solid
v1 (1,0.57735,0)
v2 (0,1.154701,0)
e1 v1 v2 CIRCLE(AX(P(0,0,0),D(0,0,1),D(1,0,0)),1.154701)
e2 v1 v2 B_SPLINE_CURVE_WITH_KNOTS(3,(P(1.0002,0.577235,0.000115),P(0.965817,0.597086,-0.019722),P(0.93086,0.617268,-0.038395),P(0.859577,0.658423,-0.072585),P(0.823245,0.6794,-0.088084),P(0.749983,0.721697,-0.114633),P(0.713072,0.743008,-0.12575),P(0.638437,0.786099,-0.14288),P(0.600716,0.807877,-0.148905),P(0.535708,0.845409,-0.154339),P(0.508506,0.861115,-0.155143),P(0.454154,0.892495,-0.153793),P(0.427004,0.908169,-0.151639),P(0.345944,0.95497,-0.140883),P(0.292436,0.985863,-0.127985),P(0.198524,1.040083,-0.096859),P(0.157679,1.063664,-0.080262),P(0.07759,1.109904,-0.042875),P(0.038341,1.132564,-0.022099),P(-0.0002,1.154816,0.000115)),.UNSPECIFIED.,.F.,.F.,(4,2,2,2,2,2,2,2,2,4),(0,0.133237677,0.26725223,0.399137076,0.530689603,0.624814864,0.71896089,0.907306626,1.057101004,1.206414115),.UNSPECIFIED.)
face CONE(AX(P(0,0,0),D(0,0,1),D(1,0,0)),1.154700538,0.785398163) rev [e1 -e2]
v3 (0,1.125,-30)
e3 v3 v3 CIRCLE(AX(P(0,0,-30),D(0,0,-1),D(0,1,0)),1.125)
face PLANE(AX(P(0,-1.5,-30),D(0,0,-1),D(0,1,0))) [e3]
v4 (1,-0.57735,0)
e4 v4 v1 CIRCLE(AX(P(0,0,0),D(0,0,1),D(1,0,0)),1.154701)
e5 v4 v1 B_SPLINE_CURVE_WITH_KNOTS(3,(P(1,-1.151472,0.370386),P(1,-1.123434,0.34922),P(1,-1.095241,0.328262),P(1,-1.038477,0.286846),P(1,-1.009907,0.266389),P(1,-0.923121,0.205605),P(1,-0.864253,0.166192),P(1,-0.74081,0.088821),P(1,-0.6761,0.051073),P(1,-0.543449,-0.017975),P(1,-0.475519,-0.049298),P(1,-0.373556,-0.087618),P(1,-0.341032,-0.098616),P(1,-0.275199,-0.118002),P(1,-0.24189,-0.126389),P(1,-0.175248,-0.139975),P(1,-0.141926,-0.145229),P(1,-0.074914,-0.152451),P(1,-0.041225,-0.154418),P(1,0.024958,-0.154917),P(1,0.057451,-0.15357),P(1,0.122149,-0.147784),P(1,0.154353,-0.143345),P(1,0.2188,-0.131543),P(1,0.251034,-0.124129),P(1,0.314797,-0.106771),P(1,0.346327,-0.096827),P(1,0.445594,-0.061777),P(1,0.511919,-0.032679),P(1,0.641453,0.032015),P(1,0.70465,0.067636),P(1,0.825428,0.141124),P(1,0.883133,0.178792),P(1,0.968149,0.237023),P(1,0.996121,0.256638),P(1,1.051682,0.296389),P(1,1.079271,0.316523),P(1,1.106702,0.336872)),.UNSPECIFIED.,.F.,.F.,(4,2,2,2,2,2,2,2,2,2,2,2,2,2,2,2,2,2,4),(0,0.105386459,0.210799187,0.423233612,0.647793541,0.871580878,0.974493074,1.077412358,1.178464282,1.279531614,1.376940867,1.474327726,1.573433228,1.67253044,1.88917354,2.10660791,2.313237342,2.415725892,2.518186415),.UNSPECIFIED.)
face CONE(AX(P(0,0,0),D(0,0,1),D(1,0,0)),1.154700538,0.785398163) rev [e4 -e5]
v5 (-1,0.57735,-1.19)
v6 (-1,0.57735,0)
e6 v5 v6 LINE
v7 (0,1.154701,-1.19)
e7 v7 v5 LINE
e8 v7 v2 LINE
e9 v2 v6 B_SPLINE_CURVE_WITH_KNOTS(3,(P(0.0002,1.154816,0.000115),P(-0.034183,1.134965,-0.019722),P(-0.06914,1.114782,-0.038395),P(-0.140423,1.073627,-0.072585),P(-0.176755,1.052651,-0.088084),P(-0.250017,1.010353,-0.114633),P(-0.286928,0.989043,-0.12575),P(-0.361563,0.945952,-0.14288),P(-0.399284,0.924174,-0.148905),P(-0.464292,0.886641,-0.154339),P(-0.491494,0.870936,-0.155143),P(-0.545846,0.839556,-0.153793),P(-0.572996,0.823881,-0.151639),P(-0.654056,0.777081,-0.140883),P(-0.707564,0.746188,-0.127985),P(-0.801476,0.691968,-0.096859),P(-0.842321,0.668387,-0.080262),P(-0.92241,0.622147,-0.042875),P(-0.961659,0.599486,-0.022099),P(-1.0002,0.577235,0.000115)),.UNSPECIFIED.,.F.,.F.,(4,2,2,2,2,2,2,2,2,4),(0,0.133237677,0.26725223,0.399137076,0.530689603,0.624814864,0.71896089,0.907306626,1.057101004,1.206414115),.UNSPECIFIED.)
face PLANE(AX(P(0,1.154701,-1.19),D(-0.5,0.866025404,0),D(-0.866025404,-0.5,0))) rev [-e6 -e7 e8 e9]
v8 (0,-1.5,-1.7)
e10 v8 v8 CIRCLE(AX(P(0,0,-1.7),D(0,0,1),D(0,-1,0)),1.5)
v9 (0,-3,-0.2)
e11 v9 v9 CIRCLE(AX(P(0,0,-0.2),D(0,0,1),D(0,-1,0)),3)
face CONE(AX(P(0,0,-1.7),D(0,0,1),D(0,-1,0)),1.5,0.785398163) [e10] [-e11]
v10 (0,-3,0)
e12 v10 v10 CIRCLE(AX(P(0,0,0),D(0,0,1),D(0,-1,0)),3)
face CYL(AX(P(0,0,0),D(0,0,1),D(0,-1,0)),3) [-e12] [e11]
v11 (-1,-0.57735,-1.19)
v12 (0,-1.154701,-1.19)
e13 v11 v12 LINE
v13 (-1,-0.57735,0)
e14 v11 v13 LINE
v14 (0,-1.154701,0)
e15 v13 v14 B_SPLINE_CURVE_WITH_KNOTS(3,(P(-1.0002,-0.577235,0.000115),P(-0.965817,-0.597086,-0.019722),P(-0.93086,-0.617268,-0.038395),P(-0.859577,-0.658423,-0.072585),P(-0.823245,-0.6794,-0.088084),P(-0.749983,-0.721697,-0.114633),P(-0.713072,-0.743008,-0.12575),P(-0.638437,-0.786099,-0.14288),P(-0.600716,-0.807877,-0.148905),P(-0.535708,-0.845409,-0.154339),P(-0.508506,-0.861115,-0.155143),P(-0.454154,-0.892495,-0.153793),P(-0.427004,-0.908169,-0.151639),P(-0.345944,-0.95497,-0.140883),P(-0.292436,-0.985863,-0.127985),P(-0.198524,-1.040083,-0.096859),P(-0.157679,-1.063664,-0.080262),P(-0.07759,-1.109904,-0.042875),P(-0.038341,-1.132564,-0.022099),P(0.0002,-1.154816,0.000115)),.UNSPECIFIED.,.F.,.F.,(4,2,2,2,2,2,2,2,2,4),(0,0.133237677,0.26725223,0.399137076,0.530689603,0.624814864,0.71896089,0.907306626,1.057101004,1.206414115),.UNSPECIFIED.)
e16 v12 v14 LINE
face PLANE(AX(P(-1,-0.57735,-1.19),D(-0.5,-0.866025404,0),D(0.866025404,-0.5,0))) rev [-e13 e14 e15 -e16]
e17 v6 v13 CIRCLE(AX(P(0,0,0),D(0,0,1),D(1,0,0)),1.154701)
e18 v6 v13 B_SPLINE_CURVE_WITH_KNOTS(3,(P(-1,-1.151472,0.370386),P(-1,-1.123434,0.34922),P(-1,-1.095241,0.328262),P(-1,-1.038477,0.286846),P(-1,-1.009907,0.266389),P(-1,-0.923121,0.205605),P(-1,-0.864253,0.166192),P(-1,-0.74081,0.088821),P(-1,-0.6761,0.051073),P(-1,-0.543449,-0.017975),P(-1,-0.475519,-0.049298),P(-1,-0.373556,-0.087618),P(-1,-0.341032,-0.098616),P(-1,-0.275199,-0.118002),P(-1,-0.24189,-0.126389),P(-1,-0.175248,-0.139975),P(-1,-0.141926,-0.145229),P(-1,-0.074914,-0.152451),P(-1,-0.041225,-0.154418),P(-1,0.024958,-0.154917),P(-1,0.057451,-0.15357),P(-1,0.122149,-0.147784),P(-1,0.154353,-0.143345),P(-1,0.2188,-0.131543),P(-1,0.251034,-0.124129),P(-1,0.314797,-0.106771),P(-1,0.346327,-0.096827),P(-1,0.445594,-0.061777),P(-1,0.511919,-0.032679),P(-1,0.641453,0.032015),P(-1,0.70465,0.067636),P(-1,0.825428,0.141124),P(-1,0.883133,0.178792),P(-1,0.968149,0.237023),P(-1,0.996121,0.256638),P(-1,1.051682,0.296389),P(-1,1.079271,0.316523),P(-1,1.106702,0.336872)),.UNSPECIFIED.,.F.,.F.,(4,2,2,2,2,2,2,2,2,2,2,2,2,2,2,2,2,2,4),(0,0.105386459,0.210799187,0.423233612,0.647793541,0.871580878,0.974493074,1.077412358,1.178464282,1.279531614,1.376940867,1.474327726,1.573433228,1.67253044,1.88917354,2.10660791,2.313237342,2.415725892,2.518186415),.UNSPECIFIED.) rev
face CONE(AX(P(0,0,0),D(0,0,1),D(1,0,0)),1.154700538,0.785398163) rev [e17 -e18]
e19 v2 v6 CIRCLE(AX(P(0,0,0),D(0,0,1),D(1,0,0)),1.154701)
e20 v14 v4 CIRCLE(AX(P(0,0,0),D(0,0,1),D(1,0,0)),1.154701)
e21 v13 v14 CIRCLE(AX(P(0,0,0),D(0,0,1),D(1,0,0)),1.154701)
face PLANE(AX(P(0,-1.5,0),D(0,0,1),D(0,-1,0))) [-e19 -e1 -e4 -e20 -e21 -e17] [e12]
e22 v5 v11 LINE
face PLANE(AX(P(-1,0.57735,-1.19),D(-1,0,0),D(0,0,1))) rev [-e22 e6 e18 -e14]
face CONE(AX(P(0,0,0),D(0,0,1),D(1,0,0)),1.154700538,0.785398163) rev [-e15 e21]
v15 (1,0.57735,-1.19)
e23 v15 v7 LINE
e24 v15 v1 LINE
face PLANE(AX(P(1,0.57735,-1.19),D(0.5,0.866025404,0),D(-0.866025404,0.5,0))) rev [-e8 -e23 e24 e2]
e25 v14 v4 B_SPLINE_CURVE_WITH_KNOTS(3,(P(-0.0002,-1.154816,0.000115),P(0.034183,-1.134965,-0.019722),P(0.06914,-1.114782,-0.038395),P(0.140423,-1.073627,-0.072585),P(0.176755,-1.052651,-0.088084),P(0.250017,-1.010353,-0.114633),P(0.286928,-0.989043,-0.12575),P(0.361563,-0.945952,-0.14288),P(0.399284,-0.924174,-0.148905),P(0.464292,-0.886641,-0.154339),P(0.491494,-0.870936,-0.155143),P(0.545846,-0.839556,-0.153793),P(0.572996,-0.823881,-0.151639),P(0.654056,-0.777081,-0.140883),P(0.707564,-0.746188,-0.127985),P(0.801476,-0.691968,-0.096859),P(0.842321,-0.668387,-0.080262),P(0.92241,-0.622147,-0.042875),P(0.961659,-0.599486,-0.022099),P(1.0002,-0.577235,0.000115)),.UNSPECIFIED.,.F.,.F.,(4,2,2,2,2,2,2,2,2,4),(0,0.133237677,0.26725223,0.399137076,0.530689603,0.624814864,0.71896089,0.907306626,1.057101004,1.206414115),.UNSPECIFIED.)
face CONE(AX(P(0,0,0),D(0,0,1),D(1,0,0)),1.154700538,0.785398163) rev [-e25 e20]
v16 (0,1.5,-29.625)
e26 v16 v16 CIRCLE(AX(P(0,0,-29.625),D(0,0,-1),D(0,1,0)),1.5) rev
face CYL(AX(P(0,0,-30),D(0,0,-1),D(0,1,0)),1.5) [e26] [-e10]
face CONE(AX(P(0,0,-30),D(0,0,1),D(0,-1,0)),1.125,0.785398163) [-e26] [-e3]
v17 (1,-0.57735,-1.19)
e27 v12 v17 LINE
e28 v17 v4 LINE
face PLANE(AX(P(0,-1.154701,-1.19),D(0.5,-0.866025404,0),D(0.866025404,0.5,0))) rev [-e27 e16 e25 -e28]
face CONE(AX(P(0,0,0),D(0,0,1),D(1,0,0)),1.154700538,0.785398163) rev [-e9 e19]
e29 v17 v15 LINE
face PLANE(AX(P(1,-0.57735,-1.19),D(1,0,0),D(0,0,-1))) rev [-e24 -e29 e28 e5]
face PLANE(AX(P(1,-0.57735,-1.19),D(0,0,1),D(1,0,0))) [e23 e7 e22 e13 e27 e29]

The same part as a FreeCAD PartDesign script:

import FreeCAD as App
import Part
import Sketcher
Q = App.Units.Quantity


def edges_at(feature, points):
    """Names of the edges that pass closest to the given points."""
    edges = feature.Shape.Edges
    near = lambda p: min(range(len(edges)), key=lambda i: edges[i].distToShape(Part.Vertex(*p))[0])
    return sorted({f"Edge{near(p) + 1}" for p in points})

doc = App.newDocument("Part")
body = doc.addObject("PartDesign::Body", "Body")

# Sketch on YZ plane
sketch1 = body.newObject("Sketcher::SketchObject", "Sketch")
sketch1.AttachmentSupport = (doc.getObject("YZ_Plane"), [""])
sketch1.MapMode = "FlatFace"
sketch1.addGeometry(Part.LineSegment(App.Vector(1.5, 0, 0), App.Vector(0, 0, 0)), False)
sketch1.addGeometry(Part.LineSegment(App.Vector(0, 0, 0), App.Vector(0, -30, 0)), False)
sketch1.addGeometry(Part.LineSegment(App.Vector(0, -30, 0), App.Vector(1.5, -30, 0)), False)
sketch1.addGeometry(Part.LineSegment(App.Vector(1.5, -30, 0), App.Vector(1.5, 0, 0)), False)
sketch1.addConstraint(Sketcher.Constraint("Coincident", 0, 2, 1, 1))
sketch1.addConstraint(Sketcher.Constraint("Coincident", 1, 2, 2, 1))
sketch1.addConstraint(Sketcher.Constraint("Coincident", 2, 2, 3, 1))
sketch1.addConstraint(Sketcher.Constraint("Coincident", 3, 2, 0, 1))
sketch1.addConstraint(Sketcher.Constraint("Horizontal", 0))
sketch1.addConstraint(Sketcher.Constraint("Vertical", 1))
sketch1.addConstraint(Sketcher.Constraint("Horizontal", 2))
sketch1.addConstraint(Sketcher.Constraint("Vertical", 3))
sketch1.addConstraint(Sketcher.Constraint("Coincident", 0, 2, -1, 1))
sketch1.addConstraint(Sketcher.Constraint("DistanceY", 1, 2, 1, 1, 30.0))
sketch1.addConstraint(Sketcher.Constraint("DistanceX", 0, 2, 0, 1, 1.5))
revolution = body.newObject("PartDesign::Revolution", "Revolution")
revolution.Profile = sketch1
revolution.ReferenceAxis = (sketch1, ["V_Axis"])
revolution.Angle = 360
doc.recompute()

chamfer = body.newObject("PartDesign::Chamfer", "Chamfer")
chamfer.Base = (revolution, edges_at(revolution, [(0, -1.5, -30)]))
chamfer.Size = 0.375

# Sketch on YZ plane
sketch2 = body.newObject("Sketcher::SketchObject", "Sketch001")
sketch2.AttachmentSupport = (doc.getObject("YZ_Plane"), [""])
sketch2.MapMode = "FlatFace"
sketch2.addGeometry(Part.LineSegment(App.Vector(3, -0.2, 0), App.Vector(3, 0, 0)), False)
sketch2.addGeometry(Part.LineSegment(App.Vector(3, 0, 0), App.Vector(0, 0, 0)), False)
sketch2.addGeometry(Part.LineSegment(App.Vector(0, 0, 0), App.Vector(0, -1.7, 0)), False)
sketch2.addGeometry(Part.LineSegment(App.Vector(0, -1.7, 0), App.Vector(1.5, -1.7, 0)), False)
sketch2.addGeometry(Part.LineSegment(App.Vector(1.5, -1.7, 0), App.Vector(3, -0.2, 0)), False)
sketch2.addConstraint(Sketcher.Constraint("Coincident", 0, 2, 1, 1))
sketch2.addConstraint(Sketcher.Constraint("Coincident", 1, 2, 2, 1))
sketch2.addConstraint(Sketcher.Constraint("Coincident", 2, 2, 3, 1))
sketch2.addConstraint(Sketcher.Constraint("Coincident", 3, 2, 4, 1))
sketch2.addConstraint(Sketcher.Constraint("Coincident", 4, 2, 0, 1))
sketch2.addConstraint(Sketcher.Constraint("Vertical", 0))
sketch2.addConstraint(Sketcher.Constraint("Horizontal", 1))
sketch2.addConstraint(Sketcher.Constraint("Vertical", 2))
sketch2.addConstraint(Sketcher.Constraint("Horizontal", 3))
sketch2.addConstraint(Sketcher.Constraint("Coincident", 1, 2, -1, 1))
sketch2.addConstraint(Sketcher.Constraint("DistanceX", 1, 2, 1, 1, 3.0))
sketch2.addConstraint(Sketcher.Constraint("Angle", 4, Q("45 deg")))
sketch2.addConstraint(Sketcher.Constraint("DistanceX", 3, 1, 3, 2, 1.5))
sketch2.addConstraint(Sketcher.Constraint("DistanceY", 0, 1, 0, 2, 0.2))
revolution2 = body.newObject("PartDesign::Revolution", "Revolution001")
revolution2.Profile = sketch2
revolution2.ReferenceAxis = (sketch2, ["V_Axis"])
revolution2.Angle = 360

# Sketch on YZ plane
sketch3 = body.newObject("Sketcher::SketchObject", "Sketch002")
sketch3.AttachmentSupport = (doc.getObject("YZ_Plane"), [""])
sketch3.MapMode = "FlatFace"
sketch3.addGeometry(Part.LineSegment(App.Vector(0, -1.7, 0), App.Vector(-1.5, -1.7, 0)), False)
sketch3.addGeometry(Part.LineSegment(App.Vector(-1.5, -1.7, 0), App.Vector(0, -3.2, 0)), False)
sketch3.addGeometry(Part.LineSegment(App.Vector(0, -3.2, 0), App.Vector(0, -1.7, 0)), False)
sketch3.addConstraint(Sketcher.Constraint("Coincident", 0, 2, 1, 1))
sketch3.addConstraint(Sketcher.Constraint("Coincident", 1, 2, 2, 1))
sketch3.addConstraint(Sketcher.Constraint("Coincident", 2, 2, 0, 1))
sketch3.addConstraint(Sketcher.Constraint("Horizontal", 0))
sketch3.addConstraint(Sketcher.Constraint("Vertical", 2))
sketch3.addConstraint(Sketcher.Constraint("PointOnObject", 1, 2, -2))
sketch3.addConstraint(Sketcher.Constraint("Equal", 0, 2))
sketch3.addConstraint(Sketcher.Constraint("DistanceX", 0, 2, 0, 1, 1.5))
sketch3.addConstraint(Sketcher.Constraint("DistanceY", 0, 2, -1, 1, 1.7))
revolution3 = body.newObject("PartDesign::Revolution", "Revolution002")
revolution3.Profile = sketch3
revolution3.ReferenceAxis = (sketch3, ["V_Axis"])
revolution3.Angle = 360

# Sketch on XY plane
sketch4 = body.newObject("Sketcher::SketchObject", "Sketch003")
sketch4.AttachmentSupport = (doc.getObject("XY_Plane"), [""])
sketch4.MapMode = "FlatFace"
sketch4.addGeometry(Part.LineSegment(App.Vector(1, -0.6, 0), App.Vector(1, 0.6, 0)), False)
sketch4.addGeometry(Part.LineSegment(App.Vector(1, 0.6, 0), App.Vector(0, 1.2, 0)), False)
sketch4.addGeometry(Part.LineSegment(App.Vector(0, 1.2, 0), App.Vector(-1, 0.6, 0)), False)
sketch4.addGeometry(Part.LineSegment(App.Vector(-1, 0.6, 0), App.Vector(-1, -0.6, 0)), False)
sketch4.addGeometry(Part.LineSegment(App.Vector(-1, -0.6, 0), App.Vector(0, -1.2, 0)), False)
sketch4.addGeometry(Part.LineSegment(App.Vector(0, -1.2, 0), App.Vector(1, -0.6, 0)), False)
sketch4.addConstraint(Sketcher.Constraint("Coincident", 0, 2, 1, 1))
sketch4.addConstraint(Sketcher.Constraint("Coincident", 1, 2, 2, 1))
sketch4.addConstraint(Sketcher.Constraint("Coincident", 2, 2, 3, 1))
sketch4.addConstraint(Sketcher.Constraint("Coincident", 3, 2, 4, 1))
sketch4.addConstraint(Sketcher.Constraint("Coincident", 4, 2, 5, 1))
sketch4.addConstraint(Sketcher.Constraint("Coincident", 5, 2, 0, 1))
sketch4.addConstraint(Sketcher.Constraint("Vertical", 0))
sketch4.addConstraint(Sketcher.Constraint("Vertical", 3))
sketch4.addConstraint(Sketcher.Constraint("Symmetric", 0, 2, 3, 2, -1, 1))
sketch4.addConstraint(Sketcher.Constraint("Symmetric", 1, 2, 4, 2, -1, 1))
sketch4.addConstraint(Sketcher.Constraint("PointOnObject", 1, 2, -2))
sketch4.addConstraint(Sketcher.Constraint("Parallel", 2, 5))
sketch4.addConstraint(Sketcher.Constraint("Horizontal", 0, 2, 2, 2))
sketch4.addConstraint(Sketcher.Constraint("Angle", 1, Q("150 deg")))
sketch4.addConstraint(Sketcher.Constraint("DistanceX", -1, 1, 0, 2, 1.0))
sketch4.addConstraint(Sketcher.Constraint("DistanceY", 0, 1, 0, 2, 1.154701))
pocket1 = body.newObject("PartDesign::Pocket", "Pocket")
pocket1.Profile = sketch4
pocket1.Length = 1.19

# Sketch on YZ plane
sketch5 = body.newObject("Sketcher::SketchObject", "Sketch004")
sketch5.AttachmentSupport = (doc.getObject("YZ_Plane"), [""])
sketch5.MapMode = "FlatFace"
sketch5.addGeometry(Part.LineSegment(App.Vector(0, 0, 0), App.Vector(-1.2, 0, 0)), False)
sketch5.addGeometry(Part.LineSegment(App.Vector(-1.2, 0, 0), App.Vector(0, -1.2, 0)), False)
sketch5.addGeometry(Part.LineSegment(App.Vector(0, -1.2, 0), App.Vector(0, 0, 0)), False)
sketch5.addConstraint(Sketcher.Constraint("Coincident", 0, 2, 1, 1))
sketch5.addConstraint(Sketcher.Constraint("Coincident", 1, 2, 2, 1))
sketch5.addConstraint(Sketcher.Constraint("Coincident", 2, 2, 0, 1))
sketch5.addConstraint(Sketcher.Constraint("Horizontal", 0))
sketch5.addConstraint(Sketcher.Constraint("Vertical", 2))
sketch5.addConstraint(Sketcher.Constraint("Coincident", 2, 2, -1, 1))
sketch5.addConstraint(Sketcher.Constraint("Equal", 0, 2))
sketch5.addConstraint(Sketcher.Constraint("DistanceX", 0, 2, 0, 1, 1.154701))
groove = body.newObject("PartDesign::Groove", "Groove")
groove.Profile = sketch5
groove.ReferenceAxis = (sketch5, ["V_Axis"])
groove.Angle = 360

doc.recompute()
